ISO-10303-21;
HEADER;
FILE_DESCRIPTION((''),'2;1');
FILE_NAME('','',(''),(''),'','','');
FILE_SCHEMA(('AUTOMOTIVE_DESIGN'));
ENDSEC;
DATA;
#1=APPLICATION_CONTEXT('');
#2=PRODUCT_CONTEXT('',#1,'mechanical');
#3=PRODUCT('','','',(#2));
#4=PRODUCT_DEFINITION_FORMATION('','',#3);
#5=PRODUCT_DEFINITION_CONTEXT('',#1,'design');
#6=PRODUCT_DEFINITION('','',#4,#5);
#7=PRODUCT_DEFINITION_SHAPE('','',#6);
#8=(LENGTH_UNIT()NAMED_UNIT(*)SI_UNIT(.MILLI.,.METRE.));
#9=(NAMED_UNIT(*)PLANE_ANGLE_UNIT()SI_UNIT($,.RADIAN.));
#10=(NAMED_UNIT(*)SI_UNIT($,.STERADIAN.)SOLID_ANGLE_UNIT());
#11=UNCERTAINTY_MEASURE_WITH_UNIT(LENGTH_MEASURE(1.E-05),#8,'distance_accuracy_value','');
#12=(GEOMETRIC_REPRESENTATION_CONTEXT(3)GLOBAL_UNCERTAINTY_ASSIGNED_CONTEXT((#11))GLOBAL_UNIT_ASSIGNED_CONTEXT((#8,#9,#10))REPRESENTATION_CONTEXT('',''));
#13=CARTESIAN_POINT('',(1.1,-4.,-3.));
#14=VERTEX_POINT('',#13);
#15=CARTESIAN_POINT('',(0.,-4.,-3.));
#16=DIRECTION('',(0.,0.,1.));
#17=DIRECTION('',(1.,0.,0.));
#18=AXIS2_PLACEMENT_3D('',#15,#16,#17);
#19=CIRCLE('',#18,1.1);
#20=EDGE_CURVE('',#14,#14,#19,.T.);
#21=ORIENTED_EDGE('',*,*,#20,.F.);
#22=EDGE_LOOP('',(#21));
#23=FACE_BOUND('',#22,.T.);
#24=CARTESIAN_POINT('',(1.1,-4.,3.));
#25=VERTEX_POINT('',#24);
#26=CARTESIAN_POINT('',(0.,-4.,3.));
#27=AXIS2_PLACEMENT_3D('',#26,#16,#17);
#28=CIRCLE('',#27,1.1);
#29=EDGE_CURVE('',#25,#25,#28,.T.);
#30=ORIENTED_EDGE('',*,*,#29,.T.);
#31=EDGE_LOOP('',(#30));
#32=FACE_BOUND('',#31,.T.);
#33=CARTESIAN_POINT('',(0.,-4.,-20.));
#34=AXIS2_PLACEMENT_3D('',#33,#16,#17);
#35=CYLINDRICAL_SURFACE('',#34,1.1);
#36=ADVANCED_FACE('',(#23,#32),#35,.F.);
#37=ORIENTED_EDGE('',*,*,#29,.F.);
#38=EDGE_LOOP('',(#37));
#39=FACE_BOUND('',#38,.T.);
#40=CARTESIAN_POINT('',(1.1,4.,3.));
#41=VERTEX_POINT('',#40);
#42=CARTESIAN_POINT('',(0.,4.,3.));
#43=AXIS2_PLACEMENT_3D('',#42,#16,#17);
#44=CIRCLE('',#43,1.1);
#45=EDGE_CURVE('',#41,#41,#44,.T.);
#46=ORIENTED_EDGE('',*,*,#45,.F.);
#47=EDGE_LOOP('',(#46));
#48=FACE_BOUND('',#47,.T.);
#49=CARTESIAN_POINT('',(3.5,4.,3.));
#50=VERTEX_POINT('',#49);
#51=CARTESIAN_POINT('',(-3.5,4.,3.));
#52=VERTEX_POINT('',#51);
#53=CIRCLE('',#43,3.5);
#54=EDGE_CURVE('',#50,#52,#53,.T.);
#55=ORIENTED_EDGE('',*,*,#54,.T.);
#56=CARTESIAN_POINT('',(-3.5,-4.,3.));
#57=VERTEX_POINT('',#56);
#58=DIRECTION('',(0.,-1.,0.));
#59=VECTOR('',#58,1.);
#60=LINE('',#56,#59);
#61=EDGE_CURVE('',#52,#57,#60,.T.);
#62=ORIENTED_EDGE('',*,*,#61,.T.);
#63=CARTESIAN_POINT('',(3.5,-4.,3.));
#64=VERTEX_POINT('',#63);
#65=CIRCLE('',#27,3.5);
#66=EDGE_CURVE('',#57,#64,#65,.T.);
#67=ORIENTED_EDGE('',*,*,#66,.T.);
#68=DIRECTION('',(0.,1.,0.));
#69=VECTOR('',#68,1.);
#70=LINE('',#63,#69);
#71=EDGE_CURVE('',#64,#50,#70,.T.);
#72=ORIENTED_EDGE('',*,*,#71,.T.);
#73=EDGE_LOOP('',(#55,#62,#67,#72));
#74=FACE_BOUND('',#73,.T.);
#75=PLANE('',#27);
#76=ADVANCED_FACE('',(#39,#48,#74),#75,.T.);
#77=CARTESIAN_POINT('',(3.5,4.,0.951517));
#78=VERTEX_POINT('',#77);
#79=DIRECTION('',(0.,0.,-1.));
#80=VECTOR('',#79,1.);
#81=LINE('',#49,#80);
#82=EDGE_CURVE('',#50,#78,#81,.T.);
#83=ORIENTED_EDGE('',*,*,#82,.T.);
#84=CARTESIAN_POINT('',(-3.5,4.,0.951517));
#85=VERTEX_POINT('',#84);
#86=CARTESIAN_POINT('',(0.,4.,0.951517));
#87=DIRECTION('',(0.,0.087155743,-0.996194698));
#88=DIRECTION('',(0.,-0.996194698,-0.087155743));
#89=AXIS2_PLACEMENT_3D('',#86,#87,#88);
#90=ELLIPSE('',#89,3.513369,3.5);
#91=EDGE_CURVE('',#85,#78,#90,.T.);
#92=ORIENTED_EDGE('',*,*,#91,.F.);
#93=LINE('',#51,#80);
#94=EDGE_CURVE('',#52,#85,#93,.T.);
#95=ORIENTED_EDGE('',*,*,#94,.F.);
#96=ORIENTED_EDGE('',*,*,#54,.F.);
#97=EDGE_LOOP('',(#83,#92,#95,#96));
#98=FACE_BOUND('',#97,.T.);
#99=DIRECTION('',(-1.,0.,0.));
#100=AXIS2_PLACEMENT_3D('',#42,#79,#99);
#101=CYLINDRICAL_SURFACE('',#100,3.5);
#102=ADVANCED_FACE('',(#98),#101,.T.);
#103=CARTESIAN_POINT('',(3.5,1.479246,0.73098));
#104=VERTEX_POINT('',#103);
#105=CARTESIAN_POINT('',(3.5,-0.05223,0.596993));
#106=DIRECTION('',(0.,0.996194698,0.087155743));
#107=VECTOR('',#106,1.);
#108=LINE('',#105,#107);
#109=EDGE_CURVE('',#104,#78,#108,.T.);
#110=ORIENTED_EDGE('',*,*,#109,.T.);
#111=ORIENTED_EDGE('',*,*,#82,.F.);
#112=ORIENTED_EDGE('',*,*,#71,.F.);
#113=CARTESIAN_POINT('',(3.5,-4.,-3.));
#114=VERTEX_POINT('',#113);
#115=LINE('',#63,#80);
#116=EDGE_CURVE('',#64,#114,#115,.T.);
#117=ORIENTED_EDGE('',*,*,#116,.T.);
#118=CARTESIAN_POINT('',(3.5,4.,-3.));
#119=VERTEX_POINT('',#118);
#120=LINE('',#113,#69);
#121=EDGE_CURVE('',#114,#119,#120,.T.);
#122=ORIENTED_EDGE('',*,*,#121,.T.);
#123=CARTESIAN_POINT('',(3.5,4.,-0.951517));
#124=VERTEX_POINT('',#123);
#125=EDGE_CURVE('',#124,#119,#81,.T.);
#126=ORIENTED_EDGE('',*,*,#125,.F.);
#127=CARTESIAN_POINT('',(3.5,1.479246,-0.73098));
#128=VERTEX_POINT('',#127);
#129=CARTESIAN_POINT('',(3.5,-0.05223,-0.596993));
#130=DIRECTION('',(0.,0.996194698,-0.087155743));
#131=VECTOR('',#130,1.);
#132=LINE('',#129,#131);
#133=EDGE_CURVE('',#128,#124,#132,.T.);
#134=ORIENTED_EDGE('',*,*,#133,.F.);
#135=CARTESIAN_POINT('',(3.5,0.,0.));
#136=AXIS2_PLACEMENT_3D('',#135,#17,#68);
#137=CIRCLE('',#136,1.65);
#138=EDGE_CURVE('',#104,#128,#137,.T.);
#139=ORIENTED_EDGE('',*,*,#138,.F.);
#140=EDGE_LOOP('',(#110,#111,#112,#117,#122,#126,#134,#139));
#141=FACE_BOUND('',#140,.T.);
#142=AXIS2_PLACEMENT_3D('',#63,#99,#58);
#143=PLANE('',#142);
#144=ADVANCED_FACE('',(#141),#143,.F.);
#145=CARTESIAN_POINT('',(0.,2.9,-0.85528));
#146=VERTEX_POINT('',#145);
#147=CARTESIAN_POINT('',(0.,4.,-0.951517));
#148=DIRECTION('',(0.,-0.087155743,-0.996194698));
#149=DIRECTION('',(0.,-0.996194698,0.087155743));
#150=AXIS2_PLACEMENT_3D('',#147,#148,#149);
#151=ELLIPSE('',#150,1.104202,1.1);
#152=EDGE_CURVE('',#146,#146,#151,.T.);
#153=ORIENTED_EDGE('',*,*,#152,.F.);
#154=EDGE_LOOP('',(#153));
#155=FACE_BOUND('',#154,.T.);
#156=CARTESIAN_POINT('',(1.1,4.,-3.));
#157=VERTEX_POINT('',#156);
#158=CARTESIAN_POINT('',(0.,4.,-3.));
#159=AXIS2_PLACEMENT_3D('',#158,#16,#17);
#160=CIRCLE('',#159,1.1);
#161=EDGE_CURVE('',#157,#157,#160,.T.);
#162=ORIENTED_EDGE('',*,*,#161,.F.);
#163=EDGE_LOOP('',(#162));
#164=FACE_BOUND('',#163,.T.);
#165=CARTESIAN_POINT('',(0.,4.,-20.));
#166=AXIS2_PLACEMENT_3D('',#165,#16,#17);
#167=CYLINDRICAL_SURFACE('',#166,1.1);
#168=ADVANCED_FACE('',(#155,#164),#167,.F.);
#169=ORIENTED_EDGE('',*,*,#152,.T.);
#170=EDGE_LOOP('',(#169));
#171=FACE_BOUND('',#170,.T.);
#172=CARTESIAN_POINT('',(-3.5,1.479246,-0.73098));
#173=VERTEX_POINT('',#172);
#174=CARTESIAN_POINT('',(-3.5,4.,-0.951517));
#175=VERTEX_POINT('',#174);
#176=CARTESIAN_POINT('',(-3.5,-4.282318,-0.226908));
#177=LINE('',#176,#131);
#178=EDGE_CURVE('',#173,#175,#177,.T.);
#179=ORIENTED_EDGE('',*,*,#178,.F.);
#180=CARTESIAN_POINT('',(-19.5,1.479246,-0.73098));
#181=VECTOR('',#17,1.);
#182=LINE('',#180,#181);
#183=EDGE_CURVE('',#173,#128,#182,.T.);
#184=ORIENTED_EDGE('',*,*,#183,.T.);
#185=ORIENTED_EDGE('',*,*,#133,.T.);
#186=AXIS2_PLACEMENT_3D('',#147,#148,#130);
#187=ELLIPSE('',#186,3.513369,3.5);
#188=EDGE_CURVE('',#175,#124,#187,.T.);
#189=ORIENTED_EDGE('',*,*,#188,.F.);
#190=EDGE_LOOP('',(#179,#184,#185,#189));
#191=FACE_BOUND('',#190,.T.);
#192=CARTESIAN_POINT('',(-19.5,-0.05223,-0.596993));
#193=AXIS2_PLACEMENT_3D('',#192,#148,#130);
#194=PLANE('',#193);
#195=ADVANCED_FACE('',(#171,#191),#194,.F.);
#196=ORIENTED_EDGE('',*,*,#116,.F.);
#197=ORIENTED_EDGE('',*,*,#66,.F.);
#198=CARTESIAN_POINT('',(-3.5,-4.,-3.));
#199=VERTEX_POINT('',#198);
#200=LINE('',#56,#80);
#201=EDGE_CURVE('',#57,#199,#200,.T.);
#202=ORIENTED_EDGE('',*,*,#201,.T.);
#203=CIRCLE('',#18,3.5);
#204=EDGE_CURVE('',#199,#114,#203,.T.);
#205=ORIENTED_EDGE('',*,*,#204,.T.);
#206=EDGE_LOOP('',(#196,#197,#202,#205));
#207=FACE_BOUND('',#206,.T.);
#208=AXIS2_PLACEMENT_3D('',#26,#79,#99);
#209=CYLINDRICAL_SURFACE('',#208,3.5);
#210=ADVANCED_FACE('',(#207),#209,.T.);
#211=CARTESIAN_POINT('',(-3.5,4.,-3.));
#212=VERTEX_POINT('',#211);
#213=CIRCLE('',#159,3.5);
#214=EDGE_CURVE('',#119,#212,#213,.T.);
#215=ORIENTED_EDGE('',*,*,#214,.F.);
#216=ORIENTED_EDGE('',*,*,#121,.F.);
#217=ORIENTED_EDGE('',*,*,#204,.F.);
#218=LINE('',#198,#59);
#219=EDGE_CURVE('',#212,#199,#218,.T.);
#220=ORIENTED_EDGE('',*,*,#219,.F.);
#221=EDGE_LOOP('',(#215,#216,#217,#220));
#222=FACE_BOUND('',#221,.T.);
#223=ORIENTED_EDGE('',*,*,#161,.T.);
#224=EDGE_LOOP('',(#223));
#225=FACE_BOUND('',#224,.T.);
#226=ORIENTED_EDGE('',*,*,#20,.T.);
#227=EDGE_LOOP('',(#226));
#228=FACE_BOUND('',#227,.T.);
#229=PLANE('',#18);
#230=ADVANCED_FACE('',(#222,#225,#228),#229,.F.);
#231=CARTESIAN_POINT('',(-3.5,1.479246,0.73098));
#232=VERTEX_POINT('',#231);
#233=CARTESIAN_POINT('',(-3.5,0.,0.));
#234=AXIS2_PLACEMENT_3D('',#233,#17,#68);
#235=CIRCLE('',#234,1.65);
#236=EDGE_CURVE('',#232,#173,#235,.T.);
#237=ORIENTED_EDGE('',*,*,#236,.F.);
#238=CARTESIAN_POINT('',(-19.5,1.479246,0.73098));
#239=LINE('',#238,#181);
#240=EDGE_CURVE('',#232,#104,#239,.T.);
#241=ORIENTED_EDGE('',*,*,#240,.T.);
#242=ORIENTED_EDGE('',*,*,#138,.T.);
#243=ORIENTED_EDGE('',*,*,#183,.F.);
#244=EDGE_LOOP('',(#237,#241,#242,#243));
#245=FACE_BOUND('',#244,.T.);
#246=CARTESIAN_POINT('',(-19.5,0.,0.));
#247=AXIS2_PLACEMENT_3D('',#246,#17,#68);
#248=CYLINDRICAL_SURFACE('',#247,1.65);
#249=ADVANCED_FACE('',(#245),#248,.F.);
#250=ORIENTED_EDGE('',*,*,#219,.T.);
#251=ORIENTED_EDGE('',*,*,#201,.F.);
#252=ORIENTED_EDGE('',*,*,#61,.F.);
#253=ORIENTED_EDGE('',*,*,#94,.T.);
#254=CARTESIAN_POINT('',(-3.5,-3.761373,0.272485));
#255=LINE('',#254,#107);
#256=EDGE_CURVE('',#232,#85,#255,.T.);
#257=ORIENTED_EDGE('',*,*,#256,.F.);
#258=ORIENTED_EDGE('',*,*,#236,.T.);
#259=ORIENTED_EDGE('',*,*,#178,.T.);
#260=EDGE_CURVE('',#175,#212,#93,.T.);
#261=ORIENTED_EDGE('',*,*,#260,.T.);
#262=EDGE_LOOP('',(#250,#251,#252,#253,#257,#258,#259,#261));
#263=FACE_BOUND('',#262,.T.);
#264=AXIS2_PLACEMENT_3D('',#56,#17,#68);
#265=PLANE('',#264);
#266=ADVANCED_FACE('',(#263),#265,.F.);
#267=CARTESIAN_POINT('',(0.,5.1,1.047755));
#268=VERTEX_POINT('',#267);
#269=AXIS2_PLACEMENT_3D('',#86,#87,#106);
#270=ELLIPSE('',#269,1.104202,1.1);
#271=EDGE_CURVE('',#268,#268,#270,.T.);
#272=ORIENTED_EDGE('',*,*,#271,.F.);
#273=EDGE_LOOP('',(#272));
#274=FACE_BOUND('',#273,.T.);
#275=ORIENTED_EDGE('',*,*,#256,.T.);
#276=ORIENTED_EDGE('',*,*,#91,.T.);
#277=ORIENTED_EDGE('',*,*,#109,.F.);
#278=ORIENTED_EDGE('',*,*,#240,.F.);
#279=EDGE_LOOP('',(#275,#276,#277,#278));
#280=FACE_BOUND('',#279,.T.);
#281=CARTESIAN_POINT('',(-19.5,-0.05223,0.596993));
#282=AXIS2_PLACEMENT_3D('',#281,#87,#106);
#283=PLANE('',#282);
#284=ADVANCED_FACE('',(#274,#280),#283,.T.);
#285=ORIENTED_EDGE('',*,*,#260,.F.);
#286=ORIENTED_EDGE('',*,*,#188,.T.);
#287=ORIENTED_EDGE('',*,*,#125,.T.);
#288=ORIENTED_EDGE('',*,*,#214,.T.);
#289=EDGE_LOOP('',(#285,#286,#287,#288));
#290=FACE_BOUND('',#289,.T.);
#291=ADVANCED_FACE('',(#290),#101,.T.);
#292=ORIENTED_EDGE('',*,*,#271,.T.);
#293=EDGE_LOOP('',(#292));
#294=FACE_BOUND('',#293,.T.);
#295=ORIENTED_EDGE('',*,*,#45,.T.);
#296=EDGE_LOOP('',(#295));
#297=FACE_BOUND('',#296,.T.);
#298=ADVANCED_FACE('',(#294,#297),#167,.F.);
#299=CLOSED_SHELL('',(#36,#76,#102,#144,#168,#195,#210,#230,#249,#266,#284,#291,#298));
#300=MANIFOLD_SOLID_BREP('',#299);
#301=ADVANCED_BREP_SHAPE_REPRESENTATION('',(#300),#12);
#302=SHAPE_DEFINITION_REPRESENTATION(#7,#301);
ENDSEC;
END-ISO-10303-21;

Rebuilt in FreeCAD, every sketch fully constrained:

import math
import FreeCAD as App
import Part
import Sketcher
from FreeCAD import Vector
Q = App.Units.Quantity

doc = App.newDocument("Part")
params = doc.addObject("Spreadsheet::Sheet", "Params")
for row, (alias, value) in enumerate([
    ("sketch1_radius", "3.5 mm"),
    ("sketch1_height", "8 mm"),
    ("pad1_length", "6 mm"),
    ("sketch2_radius", "1.65 mm"),
    ("pocket1_length", "23 mm"),
    ("sketch3_diameter", "2.2 mm"),
    ("pocket2_length", "23 mm"),
    ("sketch4_diameter", "2.2 mm"),
    ("pocket3_length", "23 mm"),
], start=1):
    params.set(f"A{row}", alias)
    params.set(f"B{row}", "=" + value)
    params.setAlias(f"B{row}", alias)

body = doc.addObject("PartDesign::Body", "Body")

sketch1 = doc.addObject("Sketcher::SketchObject", "Sketch")
body.addObject(sketch1)
sketch1.AttachmentSupport = (doc.XY_Plane, [""])
sketch1.MapMode = "FlatFace"
sketch1.addGeometry([
    Part.LineSegment(Vector(-3.5, 4, 0), Vector(-3.5, -4, 0)),
    Part.ArcOfCircle(Part.Circle(Vector(0, -4, 0), Vector(0, 0, 1), 3.5), math.radians(180), math.radians(360)),
    Part.LineSegment(Vector(3.5, -4, 0), Vector(3.5, 4, 0)),
    Part.ArcOfCircle(Part.Circle(Vector(0, 4, 0), Vector(0, 0, 1), 3.5), math.radians(0), math.radians(180)),
], False)
sketch1.addConstraint([
    Sketcher.Constraint("Tangent", 0, 2, 1, 1),
    Sketcher.Constraint("Tangent", 1, 2, 2, 1),
    Sketcher.Constraint("Tangent", 2, 2, 3, 1),
    Sketcher.Constraint("Tangent", 3, 2, 0, 1),
    Sketcher.Constraint("Vertical", 0),
    Sketcher.Constraint("Vertical", 2),
    Sketcher.Constraint("Symmetric", 1, 3, 3, 3, -1, 1),
    Sketcher.Constraint("Radius", 1, Q("3.5 mm")),
    Sketcher.Constraint("DistanceY", 0, 2, 0, 1, Q("8 mm")),
])
sketch1.setExpression("Constraints[7]", "Params.sketch1_radius")
sketch1.setExpression("Constraints[8]", "Params.sketch1_height")
pad1 = doc.addObject("PartDesign::Pad", "Pad")
body.addObject(pad1)
pad1.Profile = sketch1
pad1.setExpression("Length", "Params.pad1_length")
pad1.Midplane = True

sketch2 = doc.addObject("Sketcher::SketchObject", "Sketch001")
body.addObject(sketch2)
sketch2.AttachmentSupport = (doc.YZ_Plane, [""])
sketch2.MapMode = "FlatFace"
sketch2.AttachmentOffset = App.Placement(Vector(0, 0, 3.5), App.Rotation())
sketch2.addGeometry([
    Part.ArcOfCircle(Part.Circle(Vector(0, 0, 0), Vector(0, 0, 1), 1.6), math.radians(26), math.radians(334)),
    Part.LineSegment(Vector(1.5, -0.7, 0), Vector(9.2, -1.4, 0)),
    Part.LineSegment(Vector(9.2, -1.4, 0), Vector(9.2, 1.4, 0)),
    Part.LineSegment(Vector(9.2, 1.4, 0), Vector(1.5, 0.7, 0)),
], False)
sketch2.addConstraint([
    Sketcher.Constraint("Coincident", 0, 2, 1, 1),
    Sketcher.Constraint("Coincident", 1, 2, 2, 1),
    Sketcher.Constraint("Coincident", 2, 2, 3, 1),
    Sketcher.Constraint("Coincident", 3, 2, 0, 1),
    Sketcher.Constraint("Vertical", 2),
    Sketcher.Constraint("Coincident", 0, 3, -1, 1),
    Sketcher.Constraint("Vertical", 0, 2, 3, 2),
    Sketcher.Constraint("Equal", 1, 3),
    Sketcher.Constraint("Angle", 1, Q("-5 deg")),
    Sketcher.Constraint("Radius", 0, Q("1.65 mm")),
    Sketcher.Constraint("DistanceY", 2, 1, 2, 2, Q("2.810578 mm")),
    Sketcher.Constraint("Distance", 1, Q("7.736831 mm")),
])
sketch2.setExpression("Constraints[9]", "Params.sketch2_radius")
pocket1 = doc.addObject("PartDesign::Pocket", "Pocket")
body.addObject(pocket1)
pocket1.Profile = sketch2
pocket1.setExpression("Length", "Params.pocket1_length")

sketch3 = doc.addObject("Sketcher::SketchObject", "Sketch002")
body.addObject(sketch3)
sketch3.AttachmentSupport = (doc.XY_Plane, [""])
sketch3.MapMode = "FlatFace"
sketch3.AttachmentOffset = App.Placement(Vector(0, 0, 3), App.Rotation())
sketch3.addGeometry(Part.Circle(Vector(0, 4, 0), Vector(0, 0, 1), 1.1), False)
sketch3.addConstraint([
    Sketcher.Constraint("PointOnObject", 0, 3, -2),
    Sketcher.Constraint("Diameter", 0, Q("2.2 mm")),
    Sketcher.Constraint("DistanceY", -1, 1, 0, 3, Q("4 mm")),
])
sketch3.setExpression("Constraints[1]", "Params.sketch3_diameter")
pocket2 = doc.addObject("PartDesign::Pocket", "Pocket001")
body.addObject(pocket2)
pocket2.Profile = sketch3
pocket2.setExpression("Length", "Params.pocket2_length")

sketch4 = doc.addObject("Sketcher::SketchObject", "Sketch003")
body.addObject(sketch4)
sketch4.AttachmentSupport = (doc.XY_Plane, [""])
sketch4.MapMode = "FlatFace"
sketch4.AttachmentOffset = App.Placement(Vector(0, 0, 3), App.Rotation())
sketch4.addGeometry(Part.Circle(Vector(0, -4, 0), Vector(0, 0, 1), 1.1), False)
sketch4.addConstraint([
    Sketcher.Constraint("PointOnObject", 0, 3, -2),
    Sketcher.Constraint("Diameter", 0, Q("2.2 mm")),
    Sketcher.Constraint("DistanceY", 0, 3, -1, 1, Q("4 mm")),
])
sketch4.setExpression("Constraints[1]", "Params.sketch4_diameter")
pocket3 = doc.addObject("PartDesign::Pocket", "Pocket002")
body.addObject(pocket3)
pocket3.Profile = sketch4
pocket3.setExpression("Length", "Params.pocket3_length")

doc.recompute()
